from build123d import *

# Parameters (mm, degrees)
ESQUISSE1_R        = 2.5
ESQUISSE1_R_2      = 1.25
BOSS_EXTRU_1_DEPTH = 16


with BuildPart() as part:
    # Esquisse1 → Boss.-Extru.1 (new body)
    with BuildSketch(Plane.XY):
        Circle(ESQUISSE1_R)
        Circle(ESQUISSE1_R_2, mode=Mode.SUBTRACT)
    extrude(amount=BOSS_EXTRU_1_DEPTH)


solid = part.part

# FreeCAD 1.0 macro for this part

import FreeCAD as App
import Part
import Sketcher
from FreeCAD import Vector

doc = App.newDocument("Part")
body = doc.addObject("PartDesign::Body", "Body")

sketch1 = body.newObject("Sketcher::SketchObject", "Sketch")
sketch1.AttachmentSupport = (doc.getObject("XY_Plane"), [""])
sketch1.MapMode = "FlatFace"
sketch1.addGeometry(Part.Circle(Vector(0, 0, 0), Vector(0, 0, 1), 2.5), False)
sketch1.addGeometry(Part.Circle(Vector(0, 0, 0), Vector(0, 0, 1), 1.2), False)
sketch1.addConstraint(Sketcher.Constraint("Coincident", 0, 3, -1, 1))
sketch1.addConstraint(Sketcher.Constraint("Coincident", 1, 3, -1, 1))
sketch1.addConstraint(Sketcher.Constraint("Diameter", 0, 5.0))
sketch1.addConstraint(Sketcher.Constraint("Diameter", 1, 2.5))
pad1 = body.newObject("PartDesign::Pad", "Pad")
pad1.Profile = sketch1
pad1.Length = 16

doc.recompute()
